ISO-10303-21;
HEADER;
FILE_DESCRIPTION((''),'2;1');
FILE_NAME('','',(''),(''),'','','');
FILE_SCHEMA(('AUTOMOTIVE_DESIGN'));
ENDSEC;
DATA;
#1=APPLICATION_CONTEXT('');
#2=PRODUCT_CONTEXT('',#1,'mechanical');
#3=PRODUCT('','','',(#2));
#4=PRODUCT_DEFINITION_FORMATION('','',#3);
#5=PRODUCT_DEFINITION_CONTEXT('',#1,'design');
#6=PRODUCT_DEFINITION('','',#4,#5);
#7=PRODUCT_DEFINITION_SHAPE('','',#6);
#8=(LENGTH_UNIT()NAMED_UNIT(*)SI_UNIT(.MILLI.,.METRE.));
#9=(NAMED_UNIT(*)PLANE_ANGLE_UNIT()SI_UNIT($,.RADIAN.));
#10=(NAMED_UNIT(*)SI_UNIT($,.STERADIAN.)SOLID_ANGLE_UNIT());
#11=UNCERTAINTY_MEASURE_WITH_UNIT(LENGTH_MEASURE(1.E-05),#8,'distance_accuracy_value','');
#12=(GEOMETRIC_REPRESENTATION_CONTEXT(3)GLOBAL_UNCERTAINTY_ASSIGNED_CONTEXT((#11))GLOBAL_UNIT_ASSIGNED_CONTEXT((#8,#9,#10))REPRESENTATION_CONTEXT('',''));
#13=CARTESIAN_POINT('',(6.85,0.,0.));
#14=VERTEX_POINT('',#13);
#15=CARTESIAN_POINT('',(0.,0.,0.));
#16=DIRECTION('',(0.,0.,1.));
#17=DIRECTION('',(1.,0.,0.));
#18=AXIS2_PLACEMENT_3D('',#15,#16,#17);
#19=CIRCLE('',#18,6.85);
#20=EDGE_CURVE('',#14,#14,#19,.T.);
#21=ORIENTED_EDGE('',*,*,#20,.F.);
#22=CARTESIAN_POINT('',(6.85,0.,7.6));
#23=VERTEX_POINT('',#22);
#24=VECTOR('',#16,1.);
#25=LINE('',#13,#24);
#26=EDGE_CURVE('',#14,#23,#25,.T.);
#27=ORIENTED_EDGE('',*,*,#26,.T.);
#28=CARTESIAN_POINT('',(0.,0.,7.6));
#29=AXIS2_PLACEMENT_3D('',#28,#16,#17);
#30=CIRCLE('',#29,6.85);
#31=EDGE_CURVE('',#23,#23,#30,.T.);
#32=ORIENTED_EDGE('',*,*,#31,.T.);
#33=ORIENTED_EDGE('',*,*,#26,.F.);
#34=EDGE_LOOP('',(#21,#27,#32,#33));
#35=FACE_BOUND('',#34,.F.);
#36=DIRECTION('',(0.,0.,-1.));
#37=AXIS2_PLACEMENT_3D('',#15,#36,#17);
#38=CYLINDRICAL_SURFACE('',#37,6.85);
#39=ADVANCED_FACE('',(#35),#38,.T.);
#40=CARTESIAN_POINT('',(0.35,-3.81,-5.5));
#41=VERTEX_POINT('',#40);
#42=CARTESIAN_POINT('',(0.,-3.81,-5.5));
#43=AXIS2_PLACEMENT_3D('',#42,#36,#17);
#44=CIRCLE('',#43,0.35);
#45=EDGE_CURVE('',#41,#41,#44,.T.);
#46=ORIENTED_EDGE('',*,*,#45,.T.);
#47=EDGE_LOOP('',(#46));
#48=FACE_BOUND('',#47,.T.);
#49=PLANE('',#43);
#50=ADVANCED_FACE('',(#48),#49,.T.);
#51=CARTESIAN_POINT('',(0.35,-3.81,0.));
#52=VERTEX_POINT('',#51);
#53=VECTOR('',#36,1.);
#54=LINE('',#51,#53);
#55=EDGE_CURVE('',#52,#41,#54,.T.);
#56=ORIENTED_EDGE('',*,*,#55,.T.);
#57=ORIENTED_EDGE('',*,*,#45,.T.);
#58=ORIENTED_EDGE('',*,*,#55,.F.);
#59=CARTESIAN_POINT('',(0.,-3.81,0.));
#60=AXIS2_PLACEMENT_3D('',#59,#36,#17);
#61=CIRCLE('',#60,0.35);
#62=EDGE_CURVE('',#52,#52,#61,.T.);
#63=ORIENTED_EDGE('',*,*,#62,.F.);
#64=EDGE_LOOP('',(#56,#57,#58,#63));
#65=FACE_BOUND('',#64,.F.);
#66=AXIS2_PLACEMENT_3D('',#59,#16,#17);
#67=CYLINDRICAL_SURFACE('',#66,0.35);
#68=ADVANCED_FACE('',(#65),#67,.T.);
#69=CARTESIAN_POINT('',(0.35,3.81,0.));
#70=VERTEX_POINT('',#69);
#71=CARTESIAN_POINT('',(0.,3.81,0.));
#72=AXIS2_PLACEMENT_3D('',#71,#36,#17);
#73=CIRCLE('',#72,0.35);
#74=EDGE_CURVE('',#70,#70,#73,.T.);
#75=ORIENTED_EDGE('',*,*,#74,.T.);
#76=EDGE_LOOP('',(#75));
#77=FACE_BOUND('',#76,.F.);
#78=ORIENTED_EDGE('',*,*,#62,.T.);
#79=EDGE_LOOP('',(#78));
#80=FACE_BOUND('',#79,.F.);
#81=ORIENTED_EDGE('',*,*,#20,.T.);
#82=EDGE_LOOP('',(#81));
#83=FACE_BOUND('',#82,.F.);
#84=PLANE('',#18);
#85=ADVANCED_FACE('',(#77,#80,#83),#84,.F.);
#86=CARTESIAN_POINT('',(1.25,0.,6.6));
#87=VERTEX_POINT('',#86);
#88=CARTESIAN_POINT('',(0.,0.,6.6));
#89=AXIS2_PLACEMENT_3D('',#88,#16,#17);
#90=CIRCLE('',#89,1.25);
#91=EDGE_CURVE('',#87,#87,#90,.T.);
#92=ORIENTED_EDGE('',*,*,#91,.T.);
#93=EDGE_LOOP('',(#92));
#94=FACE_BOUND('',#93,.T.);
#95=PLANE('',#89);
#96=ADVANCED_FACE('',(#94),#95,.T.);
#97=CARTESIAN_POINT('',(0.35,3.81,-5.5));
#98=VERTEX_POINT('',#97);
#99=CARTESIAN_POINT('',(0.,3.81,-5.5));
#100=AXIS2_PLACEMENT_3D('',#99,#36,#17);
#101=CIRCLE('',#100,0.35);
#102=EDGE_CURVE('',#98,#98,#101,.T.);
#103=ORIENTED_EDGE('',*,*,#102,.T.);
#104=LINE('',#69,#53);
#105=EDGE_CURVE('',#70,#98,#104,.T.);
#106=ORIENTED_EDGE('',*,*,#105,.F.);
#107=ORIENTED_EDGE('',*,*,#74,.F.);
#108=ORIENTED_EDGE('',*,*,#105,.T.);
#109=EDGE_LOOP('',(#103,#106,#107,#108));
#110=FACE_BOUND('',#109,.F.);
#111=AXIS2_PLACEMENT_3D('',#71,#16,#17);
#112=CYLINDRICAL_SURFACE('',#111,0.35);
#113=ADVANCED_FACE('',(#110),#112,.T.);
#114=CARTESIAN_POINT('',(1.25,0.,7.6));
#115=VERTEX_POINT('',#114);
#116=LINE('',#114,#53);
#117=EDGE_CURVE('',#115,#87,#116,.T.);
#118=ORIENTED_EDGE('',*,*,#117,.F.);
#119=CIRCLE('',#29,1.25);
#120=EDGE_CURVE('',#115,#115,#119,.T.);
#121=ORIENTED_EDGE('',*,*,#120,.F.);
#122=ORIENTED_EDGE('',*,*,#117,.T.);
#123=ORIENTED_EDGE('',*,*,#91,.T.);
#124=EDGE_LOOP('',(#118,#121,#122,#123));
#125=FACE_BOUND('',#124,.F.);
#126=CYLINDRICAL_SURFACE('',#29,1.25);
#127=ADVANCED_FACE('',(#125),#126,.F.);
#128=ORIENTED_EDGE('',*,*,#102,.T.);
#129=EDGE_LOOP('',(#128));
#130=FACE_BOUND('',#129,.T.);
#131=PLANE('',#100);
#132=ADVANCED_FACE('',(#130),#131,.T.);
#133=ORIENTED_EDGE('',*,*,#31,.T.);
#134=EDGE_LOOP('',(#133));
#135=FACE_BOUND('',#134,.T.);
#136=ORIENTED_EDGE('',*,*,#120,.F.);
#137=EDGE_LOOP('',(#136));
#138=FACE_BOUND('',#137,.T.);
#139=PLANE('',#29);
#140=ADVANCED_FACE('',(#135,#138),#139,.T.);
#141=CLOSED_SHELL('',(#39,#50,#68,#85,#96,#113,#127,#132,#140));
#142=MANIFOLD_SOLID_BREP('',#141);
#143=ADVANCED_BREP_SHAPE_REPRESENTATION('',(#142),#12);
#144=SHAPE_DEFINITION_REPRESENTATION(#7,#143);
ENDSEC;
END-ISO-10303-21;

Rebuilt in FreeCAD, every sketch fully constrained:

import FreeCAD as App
import Part
import Sketcher
from FreeCAD import Vector

doc = App.newDocument("Part")
body = doc.addObject("PartDesign::Body", "Body")

sketch1 = body.newObject("Sketcher::SketchObject", "Sketch")
sketch1.AttachmentSupport = (doc.getObject("XY_Plane"), [""])
sketch1.MapMode = "FlatFace"
sketch1.addGeometry(Part.Circle(Vector(0, 0, 0), Vector(0, 0, 1), 6.85), False)
sketch1.addConstraint([
    Sketcher.Constraint("Coincident", 0, 3, -1, 1),
    Sketcher.Constraint("Diameter", 0, 13.7),
])
pad1 = body.newObject("PartDesign::Pad", "Pad")
pad1.Profile = sketch1
pad1.Length = 7.6

sketch2 = body.newObject("Sketcher::SketchObject", "Sketch001")
sketch2.AttachmentSupport = (doc.getObject("XY_Plane"), [""])
sketch2.MapMode = "FlatFace"
sketch2.AttachmentOffset = App.Placement(Vector(0, 0, 7.6), App.Rotation())
sketch2.addGeometry(Part.Circle(Vector(0, 0, 0), Vector(0, 0, 1), 1.25), False)
sketch2.addConstraint([
    Sketcher.Constraint("Coincident", 0, 3, -1, 1),
    Sketcher.Constraint("Diameter", 0, 2.5),
])
pocket1 = body.newObject("PartDesign::Pocket", "Pocket")
pocket1.Profile = sketch2
pocket1.Length = 1

sketch3 = body.newObject("Sketcher::SketchObject", "Sketch002")
sketch3.AttachmentSupport = (doc.getObject("XY_Plane"), [""])
sketch3.MapMode = "FlatFace"
sketch3.addGeometry([
    Part.Circle(Vector(0, -3.81, 0), Vector(0, 0, 1), 0.35),
    Part.Circle(Vector(0, 3.81, 0), Vector(0, 0, 1), 0.35),
], False)
sketch3.addConstraint([
    Sketcher.Constraint("Equal", 0, 1),
    Sketcher.Constraint("Symmetric", 0, 3, 1, 3, -1, 1),
    Sketcher.Constraint("PointOnObject", 0, 3, -2),
    Sketcher.Constraint("Diameter", 0, 0.7),
    Sketcher.Constraint("DistanceY", 0, 3, -1, 1, 3.81),
])
pad2 = body.newObject("PartDesign::Pad", "Pad001")
pad2.Profile = sketch3
pad2.Length = 5.5
pad2.Reversed = True

doc.recompute()
